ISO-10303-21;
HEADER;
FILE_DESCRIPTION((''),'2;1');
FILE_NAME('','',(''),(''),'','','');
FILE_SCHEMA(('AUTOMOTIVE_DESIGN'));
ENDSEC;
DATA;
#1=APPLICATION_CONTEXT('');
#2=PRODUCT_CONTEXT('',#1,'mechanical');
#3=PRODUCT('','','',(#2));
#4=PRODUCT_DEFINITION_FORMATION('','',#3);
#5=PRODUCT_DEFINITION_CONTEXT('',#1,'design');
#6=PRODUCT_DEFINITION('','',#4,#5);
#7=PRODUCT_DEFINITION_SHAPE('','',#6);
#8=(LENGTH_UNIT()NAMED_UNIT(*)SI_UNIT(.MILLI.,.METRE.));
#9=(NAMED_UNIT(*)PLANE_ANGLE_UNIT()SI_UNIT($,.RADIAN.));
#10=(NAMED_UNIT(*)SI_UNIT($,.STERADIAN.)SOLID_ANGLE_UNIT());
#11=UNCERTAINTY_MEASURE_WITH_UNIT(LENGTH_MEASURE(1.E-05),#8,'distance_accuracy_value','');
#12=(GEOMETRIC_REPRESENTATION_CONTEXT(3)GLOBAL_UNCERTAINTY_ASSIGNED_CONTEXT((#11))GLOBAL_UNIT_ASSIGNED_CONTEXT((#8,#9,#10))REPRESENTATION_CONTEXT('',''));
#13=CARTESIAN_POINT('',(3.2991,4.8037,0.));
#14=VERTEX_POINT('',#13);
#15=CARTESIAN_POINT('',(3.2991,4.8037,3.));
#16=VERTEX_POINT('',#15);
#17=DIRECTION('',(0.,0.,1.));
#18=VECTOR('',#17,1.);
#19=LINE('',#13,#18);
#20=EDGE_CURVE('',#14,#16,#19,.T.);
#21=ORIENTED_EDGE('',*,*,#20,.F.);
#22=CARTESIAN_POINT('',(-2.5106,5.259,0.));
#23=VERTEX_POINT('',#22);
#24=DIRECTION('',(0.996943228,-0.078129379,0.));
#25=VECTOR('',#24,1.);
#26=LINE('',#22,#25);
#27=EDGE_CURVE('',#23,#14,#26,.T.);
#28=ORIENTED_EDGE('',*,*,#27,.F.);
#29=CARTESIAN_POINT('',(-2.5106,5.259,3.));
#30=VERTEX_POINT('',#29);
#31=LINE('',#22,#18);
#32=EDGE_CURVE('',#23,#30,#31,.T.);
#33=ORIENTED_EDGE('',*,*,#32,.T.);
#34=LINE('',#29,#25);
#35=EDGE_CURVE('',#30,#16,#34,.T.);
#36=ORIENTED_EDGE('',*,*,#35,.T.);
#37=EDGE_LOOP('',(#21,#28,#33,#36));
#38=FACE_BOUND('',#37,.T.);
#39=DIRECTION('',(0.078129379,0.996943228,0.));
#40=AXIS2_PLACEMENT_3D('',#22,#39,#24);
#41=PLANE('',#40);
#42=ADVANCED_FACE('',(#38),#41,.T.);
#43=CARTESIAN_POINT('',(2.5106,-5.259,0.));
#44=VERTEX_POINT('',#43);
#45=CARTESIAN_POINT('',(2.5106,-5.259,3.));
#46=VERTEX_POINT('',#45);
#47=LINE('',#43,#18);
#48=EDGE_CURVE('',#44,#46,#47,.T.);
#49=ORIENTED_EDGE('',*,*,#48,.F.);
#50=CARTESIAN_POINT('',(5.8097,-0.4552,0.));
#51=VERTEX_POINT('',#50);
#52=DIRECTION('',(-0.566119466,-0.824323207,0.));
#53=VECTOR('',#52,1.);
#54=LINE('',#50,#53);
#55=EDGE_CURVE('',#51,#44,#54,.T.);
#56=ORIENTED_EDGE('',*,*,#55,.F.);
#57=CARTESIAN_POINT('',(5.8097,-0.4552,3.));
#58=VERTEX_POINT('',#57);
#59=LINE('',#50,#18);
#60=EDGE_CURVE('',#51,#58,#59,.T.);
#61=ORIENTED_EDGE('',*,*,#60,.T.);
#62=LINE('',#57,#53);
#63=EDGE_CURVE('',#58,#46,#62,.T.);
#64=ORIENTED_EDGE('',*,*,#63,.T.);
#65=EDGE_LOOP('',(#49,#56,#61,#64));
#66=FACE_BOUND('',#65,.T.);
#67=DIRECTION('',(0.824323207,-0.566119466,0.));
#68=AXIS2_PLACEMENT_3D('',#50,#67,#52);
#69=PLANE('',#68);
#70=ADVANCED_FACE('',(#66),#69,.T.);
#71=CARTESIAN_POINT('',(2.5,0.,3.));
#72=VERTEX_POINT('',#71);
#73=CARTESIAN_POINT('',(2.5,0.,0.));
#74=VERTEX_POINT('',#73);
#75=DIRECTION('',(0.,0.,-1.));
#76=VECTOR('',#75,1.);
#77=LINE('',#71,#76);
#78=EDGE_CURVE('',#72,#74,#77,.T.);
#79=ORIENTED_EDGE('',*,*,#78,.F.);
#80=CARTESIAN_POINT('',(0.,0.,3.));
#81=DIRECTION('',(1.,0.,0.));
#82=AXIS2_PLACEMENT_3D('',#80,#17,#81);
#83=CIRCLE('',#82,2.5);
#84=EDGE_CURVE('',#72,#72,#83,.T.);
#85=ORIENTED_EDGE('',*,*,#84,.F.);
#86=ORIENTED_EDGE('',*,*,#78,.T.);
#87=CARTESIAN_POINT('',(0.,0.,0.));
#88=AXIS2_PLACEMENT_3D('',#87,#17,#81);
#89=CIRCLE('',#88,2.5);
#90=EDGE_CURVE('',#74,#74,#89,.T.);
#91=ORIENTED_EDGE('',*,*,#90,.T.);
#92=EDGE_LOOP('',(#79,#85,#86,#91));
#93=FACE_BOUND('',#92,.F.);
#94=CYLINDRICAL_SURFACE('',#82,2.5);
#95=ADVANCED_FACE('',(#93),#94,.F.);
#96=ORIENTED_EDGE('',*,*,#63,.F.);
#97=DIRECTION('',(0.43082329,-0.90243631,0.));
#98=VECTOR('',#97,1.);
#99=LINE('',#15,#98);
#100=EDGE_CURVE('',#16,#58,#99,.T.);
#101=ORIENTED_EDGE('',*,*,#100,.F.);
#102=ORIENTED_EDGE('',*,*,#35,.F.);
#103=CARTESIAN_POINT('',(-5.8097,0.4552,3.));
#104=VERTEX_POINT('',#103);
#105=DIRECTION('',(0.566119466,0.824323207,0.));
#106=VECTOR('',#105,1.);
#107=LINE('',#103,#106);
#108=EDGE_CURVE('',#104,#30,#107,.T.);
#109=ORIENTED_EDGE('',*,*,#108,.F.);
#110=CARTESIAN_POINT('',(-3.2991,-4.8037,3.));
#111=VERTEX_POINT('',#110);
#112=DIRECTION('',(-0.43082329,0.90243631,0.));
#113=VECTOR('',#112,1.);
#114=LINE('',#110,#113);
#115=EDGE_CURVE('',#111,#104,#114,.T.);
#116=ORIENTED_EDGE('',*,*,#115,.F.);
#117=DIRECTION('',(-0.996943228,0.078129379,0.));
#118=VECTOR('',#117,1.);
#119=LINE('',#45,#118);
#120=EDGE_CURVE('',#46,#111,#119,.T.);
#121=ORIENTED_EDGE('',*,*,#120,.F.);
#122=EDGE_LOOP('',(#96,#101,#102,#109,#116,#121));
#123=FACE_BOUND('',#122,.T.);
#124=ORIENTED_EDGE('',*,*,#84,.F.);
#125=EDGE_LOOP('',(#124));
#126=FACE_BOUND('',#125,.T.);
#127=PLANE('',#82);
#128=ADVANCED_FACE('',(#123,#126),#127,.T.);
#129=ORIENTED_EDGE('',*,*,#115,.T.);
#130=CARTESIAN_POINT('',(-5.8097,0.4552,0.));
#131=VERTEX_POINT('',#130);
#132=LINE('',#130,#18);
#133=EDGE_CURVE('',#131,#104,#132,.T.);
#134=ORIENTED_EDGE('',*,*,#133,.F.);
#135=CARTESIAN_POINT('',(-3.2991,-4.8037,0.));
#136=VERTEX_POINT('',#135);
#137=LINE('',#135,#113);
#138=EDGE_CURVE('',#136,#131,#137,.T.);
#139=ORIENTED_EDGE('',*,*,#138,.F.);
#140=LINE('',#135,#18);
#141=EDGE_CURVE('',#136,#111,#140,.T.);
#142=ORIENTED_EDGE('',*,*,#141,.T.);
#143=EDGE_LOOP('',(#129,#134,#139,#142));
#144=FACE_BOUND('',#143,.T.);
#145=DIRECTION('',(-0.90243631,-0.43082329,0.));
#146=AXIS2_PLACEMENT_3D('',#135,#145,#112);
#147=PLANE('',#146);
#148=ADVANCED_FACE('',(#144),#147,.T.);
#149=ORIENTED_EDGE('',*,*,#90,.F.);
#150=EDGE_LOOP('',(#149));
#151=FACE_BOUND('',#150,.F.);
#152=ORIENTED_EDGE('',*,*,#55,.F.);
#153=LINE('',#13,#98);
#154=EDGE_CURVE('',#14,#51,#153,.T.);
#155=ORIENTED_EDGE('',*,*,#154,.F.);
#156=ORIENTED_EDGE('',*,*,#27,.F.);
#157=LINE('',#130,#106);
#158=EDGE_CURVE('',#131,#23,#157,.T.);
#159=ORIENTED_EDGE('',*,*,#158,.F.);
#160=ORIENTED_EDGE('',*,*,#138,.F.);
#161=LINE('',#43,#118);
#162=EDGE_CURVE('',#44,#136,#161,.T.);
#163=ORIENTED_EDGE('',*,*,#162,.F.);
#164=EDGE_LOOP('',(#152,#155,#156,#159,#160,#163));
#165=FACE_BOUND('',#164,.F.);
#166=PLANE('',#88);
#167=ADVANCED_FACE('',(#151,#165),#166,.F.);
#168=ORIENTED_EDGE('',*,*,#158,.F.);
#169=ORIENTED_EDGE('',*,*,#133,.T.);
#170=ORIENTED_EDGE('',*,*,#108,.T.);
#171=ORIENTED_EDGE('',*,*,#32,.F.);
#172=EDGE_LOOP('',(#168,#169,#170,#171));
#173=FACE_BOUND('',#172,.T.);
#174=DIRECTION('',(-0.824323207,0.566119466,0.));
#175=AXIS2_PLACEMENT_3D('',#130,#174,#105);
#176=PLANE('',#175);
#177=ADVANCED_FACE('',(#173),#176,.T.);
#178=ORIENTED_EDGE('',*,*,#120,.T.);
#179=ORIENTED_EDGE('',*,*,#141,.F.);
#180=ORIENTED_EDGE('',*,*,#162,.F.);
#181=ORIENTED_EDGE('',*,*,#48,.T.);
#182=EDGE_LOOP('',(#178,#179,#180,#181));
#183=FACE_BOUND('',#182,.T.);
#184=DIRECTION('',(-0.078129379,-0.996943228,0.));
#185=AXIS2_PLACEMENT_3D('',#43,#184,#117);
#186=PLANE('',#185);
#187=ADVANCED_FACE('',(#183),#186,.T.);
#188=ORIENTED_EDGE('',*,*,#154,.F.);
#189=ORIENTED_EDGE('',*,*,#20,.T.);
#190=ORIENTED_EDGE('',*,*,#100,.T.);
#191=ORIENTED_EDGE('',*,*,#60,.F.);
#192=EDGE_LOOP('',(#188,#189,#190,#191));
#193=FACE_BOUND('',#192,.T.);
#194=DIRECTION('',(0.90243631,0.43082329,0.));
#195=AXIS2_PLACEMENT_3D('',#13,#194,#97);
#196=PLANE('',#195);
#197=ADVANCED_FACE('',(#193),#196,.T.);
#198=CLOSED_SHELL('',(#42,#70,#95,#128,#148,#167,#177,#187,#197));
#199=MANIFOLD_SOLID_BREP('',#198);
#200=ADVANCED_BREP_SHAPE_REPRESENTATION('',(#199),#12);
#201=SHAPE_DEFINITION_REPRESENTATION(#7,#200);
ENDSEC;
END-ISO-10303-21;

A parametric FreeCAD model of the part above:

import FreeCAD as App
import Part
import Sketcher
Q = App.Units.Quantity

doc = App.newDocument("Part")
body = doc.addObject("PartDesign::Body", "Body")

# Sketch on XY plane
sketch1 = doc.addObject("Sketcher::SketchObject", "Sketch")
body.addObject(sketch1)
sketch1.AttachmentSupport = (doc.XY_Plane, [""])
sketch1.MapMode = "FlatFace"
sketch1.addGeometry([
    Part.LineSegment(App.Vector(3, -5, 0), App.Vector(6, 0, 0)),  # 0
    Part.LineSegment(App.Vector(6, 0, 0), App.Vector(3, 5, 0)),  # 1
    Part.LineSegment(App.Vector(3, 5, 0), App.Vector(-3, 5, 0)),  # 2
    Part.LineSegment(App.Vector(-3, 5, 0), App.Vector(-6, 0, 0)),  # 3
    Part.LineSegment(App.Vector(-6, 0, 0), App.Vector(-3, -5, 0)),  # 4
    Part.LineSegment(App.Vector(-3, -5, 0), App.Vector(3, -5, 0)),  # 5
], False)
sketch1.addConstraint([
    Sketcher.Constraint("Coincident", 0, 2, 1, 1),
    Sketcher.Constraint("Coincident", 1, 2, 2, 1),
    Sketcher.Constraint("Coincident", 2, 2, 3, 1),
    Sketcher.Constraint("Coincident", 3, 2, 4, 1),
    Sketcher.Constraint("Coincident", 4, 2, 5, 1),
    Sketcher.Constraint("Coincident", 5, 2, 0, 1),
    Sketcher.Constraint("Symmetric", 0, 2, 3, 2, -1, 1),
    Sketcher.Constraint("Symmetric", 1, 2, 4, 2, -1, 1),
    Sketcher.Constraint("Symmetric", 2, 2, 5, 2, -1, 1),
    Sketcher.Constraint("Equal", 0, 1),
    Sketcher.Constraint("Equal", 1, 2),
    Sketcher.Constraint("Angle", 0, Q("55.52 deg")),
    Sketcher.Constraint("Angle", 1, Q("115.5198 deg")),
    Sketcher.Constraint("Angle", 2, Q("175.519 deg")),
    Sketcher.Constraint("DistanceX", -1, 1, 1, 2, 3.299),
])
pad1 = doc.addObject("PartDesign::Pad", "Pad")
body.addObject(pad1)
pad1.Profile = sketch1
pad1.Length = 3

# Sketch on XY plane
sketch2 = doc.addObject("Sketcher::SketchObject", "Sketch001")
body.addObject(sketch2)
sketch2.AttachmentSupport = (doc.XY_Plane, [""])
sketch2.MapMode = "FlatFace"
sketch2.AttachmentOffset = App.Placement(App.Vector(0, 0, 3), App.Rotation())
sketch2.addGeometry(Part.Circle(App.Vector(0, 0, 0), App.Vector(0, 0, 1), 2.5), False)
sketch2.addConstraint([
    Sketcher.Constraint("Coincident", 0, 3, -1, 1),
    Sketcher.Constraint("Diameter", 0, 5.0),
])
pocket1 = doc.addObject("PartDesign::Pocket", "Pocket")
body.addObject(pocket1)
pocket1.Profile = sketch2
pocket1.Length = 3

doc.recompute()
